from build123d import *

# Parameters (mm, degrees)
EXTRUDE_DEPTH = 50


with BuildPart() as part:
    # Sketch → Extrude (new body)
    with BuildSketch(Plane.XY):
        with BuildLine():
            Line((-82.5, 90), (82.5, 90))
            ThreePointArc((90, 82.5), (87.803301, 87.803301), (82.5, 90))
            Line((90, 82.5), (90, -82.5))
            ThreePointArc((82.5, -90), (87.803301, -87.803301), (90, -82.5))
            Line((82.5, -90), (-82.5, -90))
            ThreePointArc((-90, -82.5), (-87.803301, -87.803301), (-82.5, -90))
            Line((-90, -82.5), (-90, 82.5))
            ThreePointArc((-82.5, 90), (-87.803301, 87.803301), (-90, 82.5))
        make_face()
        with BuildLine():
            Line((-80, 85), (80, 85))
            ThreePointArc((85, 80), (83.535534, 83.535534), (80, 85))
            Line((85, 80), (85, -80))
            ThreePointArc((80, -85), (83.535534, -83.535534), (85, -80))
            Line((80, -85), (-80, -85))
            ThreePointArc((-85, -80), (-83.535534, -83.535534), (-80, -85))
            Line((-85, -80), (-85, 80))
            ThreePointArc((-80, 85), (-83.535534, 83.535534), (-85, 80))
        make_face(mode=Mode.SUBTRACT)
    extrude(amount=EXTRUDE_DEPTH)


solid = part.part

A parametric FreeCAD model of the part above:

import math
import FreeCAD as App
import Part
import Sketcher
from FreeCAD import Vector

doc = App.newDocument("Part")
body = doc.addObject("PartDesign::Body", "Body")

sketch1 = body.newObject("Sketcher::SketchObject", "Sketch")
sketch1.AttachmentSupport = (doc.getObject("XY_Plane"), [""])
sketch1.MapMode = "FlatFace"
sketch1.addGeometry([
    Part.LineSegment(Vector(82.5, 90, 0), Vector(-82.5, 90, 0)),
    Part.ArcOfCircle(Part.Circle(Vector(-82.5, 82.5, 0), Vector(0, 0, 1), 7.5), math.radians(90), math.radians(180)),
    Part.LineSegment(Vector(-90, 82.5, 0), Vector(-90, -82.5, 0)),
    Part.ArcOfCircle(Part.Circle(Vector(-82.5, -82.5, 0), Vector(0, 0, 1), 7.5), math.radians(180), math.radians(270)),
    Part.LineSegment(Vector(-82.5, -90, 0), Vector(82.5, -90, 0)),
    Part.ArcOfCircle(Part.Circle(Vector(82.5, -82.5, 0), Vector(0, 0, 1), 7.5), math.radians(-90), math.radians(0)),
    Part.LineSegment(Vector(90, -82.5, 0), Vector(90, 82.5, 0)),
    Part.ArcOfCircle(Part.Circle(Vector(82.5, 82.5, 0), Vector(0, 0, 1), 7.5), math.radians(0), math.radians(90)),
    Part.LineSegment(Vector(-80, 85, 0), Vector(80, 85, 0)),
    Part.ArcOfCircle(Part.Circle(Vector(80, 80, 0), Vector(0, 0, 1), 5), math.radians(0), math.radians(90)),
    Part.LineSegment(Vector(85, 80, 0), Vector(85, -80, 0)),
    Part.ArcOfCircle(Part.Circle(Vector(80, -80, 0), Vector(0, 0, 1), 5), math.radians(-90), math.radians(0)),
    Part.LineSegment(Vector(80, -85, 0), Vector(-80, -85, 0)),
    Part.ArcOfCircle(Part.Circle(Vector(-80, -80, 0), Vector(0, 0, 1), 5), math.radians(180), math.radians(270)),
    Part.LineSegment(Vector(-85, -80, 0), Vector(-85, 80, 0)),
    Part.ArcOfCircle(Part.Circle(Vector(-80, 80, 0), Vector(0, 0, 1), 5), math.radians(90), math.radians(180)),
], False)
sketch1.addConstraint([
    Sketcher.Constraint("Tangent", 0, 2, 1, 1),
    Sketcher.Constraint("Tangent", 1, 2, 2, 1),
    Sketcher.Constraint("Tangent", 2, 2, 3, 1),
    Sketcher.Constraint("Tangent", 3, 2, 4, 1),
    Sketcher.Constraint("Tangent", 4, 2, 5, 1),
    Sketcher.Constraint("Tangent", 5, 2, 6, 1),
    Sketcher.Constraint("Tangent", 6, 2, 7, 1),
    Sketcher.Constraint("Tangent", 7, 2, 0, 1),
    Sketcher.Constraint("Tangent", 8, 2, 9, 2),
    Sketcher.Constraint("Tangent", 9, 1, 10, 1),
    Sketcher.Constraint("Tangent", 10, 2, 11, 2),
    Sketcher.Constraint("Tangent", 11, 1, 12, 1),
    Sketcher.Constraint("Tangent", 12, 2, 13, 2),
    Sketcher.Constraint("Tangent", 13, 1, 14, 1),
    Sketcher.Constraint("Tangent", 14, 2, 15, 2),
    Sketcher.Constraint("Tangent", 15, 1, 8, 1),
    Sketcher.Constraint("Horizontal", 0),
    Sketcher.Constraint("Vertical", 2),
    Sketcher.Constraint("Horizontal", 4),
    Sketcher.Constraint("Vertical", 6),
    Sketcher.Constraint("Horizontal", 8),
    Sketcher.Constraint("Vertical", 10),
    Sketcher.Constraint("Horizontal", 12),
    Sketcher.Constraint("Vertical", 14),
    Sketcher.Constraint("Equal", 1, 3),
    Sketcher.Constraint("Equal", 3, 5),
    Sketcher.Constraint("Equal", 5, 7),
    Sketcher.Constraint("Equal", 9, 11),
    Sketcher.Constraint("Equal", 11, 13),
    Sketcher.Constraint("Equal", 13, 15),
    Sketcher.Constraint("Symmetric", 1, 3, 5, 3, -1, 1),
    Sketcher.Constraint("Symmetric", 9, 3, 13, 3, -1, 1),
    Sketcher.Constraint("Equal", 4, 2),
    Sketcher.Constraint("Equal", 12, 10),
    Sketcher.Constraint("Radius", 9, 5.0),
    Sketcher.Constraint("Radius", 1, 7.5),
    Sketcher.Constraint("DistanceX", 0, 2, 0, 1, 165.0),
    Sketcher.Constraint("DistanceX", 8, 1, 8, 2, 160.0),
])
pad1 = body.newObject("PartDesign::Pad", "Pad")
pad1.Profile = sketch1
pad1.Length = 50

doc.recompute()
